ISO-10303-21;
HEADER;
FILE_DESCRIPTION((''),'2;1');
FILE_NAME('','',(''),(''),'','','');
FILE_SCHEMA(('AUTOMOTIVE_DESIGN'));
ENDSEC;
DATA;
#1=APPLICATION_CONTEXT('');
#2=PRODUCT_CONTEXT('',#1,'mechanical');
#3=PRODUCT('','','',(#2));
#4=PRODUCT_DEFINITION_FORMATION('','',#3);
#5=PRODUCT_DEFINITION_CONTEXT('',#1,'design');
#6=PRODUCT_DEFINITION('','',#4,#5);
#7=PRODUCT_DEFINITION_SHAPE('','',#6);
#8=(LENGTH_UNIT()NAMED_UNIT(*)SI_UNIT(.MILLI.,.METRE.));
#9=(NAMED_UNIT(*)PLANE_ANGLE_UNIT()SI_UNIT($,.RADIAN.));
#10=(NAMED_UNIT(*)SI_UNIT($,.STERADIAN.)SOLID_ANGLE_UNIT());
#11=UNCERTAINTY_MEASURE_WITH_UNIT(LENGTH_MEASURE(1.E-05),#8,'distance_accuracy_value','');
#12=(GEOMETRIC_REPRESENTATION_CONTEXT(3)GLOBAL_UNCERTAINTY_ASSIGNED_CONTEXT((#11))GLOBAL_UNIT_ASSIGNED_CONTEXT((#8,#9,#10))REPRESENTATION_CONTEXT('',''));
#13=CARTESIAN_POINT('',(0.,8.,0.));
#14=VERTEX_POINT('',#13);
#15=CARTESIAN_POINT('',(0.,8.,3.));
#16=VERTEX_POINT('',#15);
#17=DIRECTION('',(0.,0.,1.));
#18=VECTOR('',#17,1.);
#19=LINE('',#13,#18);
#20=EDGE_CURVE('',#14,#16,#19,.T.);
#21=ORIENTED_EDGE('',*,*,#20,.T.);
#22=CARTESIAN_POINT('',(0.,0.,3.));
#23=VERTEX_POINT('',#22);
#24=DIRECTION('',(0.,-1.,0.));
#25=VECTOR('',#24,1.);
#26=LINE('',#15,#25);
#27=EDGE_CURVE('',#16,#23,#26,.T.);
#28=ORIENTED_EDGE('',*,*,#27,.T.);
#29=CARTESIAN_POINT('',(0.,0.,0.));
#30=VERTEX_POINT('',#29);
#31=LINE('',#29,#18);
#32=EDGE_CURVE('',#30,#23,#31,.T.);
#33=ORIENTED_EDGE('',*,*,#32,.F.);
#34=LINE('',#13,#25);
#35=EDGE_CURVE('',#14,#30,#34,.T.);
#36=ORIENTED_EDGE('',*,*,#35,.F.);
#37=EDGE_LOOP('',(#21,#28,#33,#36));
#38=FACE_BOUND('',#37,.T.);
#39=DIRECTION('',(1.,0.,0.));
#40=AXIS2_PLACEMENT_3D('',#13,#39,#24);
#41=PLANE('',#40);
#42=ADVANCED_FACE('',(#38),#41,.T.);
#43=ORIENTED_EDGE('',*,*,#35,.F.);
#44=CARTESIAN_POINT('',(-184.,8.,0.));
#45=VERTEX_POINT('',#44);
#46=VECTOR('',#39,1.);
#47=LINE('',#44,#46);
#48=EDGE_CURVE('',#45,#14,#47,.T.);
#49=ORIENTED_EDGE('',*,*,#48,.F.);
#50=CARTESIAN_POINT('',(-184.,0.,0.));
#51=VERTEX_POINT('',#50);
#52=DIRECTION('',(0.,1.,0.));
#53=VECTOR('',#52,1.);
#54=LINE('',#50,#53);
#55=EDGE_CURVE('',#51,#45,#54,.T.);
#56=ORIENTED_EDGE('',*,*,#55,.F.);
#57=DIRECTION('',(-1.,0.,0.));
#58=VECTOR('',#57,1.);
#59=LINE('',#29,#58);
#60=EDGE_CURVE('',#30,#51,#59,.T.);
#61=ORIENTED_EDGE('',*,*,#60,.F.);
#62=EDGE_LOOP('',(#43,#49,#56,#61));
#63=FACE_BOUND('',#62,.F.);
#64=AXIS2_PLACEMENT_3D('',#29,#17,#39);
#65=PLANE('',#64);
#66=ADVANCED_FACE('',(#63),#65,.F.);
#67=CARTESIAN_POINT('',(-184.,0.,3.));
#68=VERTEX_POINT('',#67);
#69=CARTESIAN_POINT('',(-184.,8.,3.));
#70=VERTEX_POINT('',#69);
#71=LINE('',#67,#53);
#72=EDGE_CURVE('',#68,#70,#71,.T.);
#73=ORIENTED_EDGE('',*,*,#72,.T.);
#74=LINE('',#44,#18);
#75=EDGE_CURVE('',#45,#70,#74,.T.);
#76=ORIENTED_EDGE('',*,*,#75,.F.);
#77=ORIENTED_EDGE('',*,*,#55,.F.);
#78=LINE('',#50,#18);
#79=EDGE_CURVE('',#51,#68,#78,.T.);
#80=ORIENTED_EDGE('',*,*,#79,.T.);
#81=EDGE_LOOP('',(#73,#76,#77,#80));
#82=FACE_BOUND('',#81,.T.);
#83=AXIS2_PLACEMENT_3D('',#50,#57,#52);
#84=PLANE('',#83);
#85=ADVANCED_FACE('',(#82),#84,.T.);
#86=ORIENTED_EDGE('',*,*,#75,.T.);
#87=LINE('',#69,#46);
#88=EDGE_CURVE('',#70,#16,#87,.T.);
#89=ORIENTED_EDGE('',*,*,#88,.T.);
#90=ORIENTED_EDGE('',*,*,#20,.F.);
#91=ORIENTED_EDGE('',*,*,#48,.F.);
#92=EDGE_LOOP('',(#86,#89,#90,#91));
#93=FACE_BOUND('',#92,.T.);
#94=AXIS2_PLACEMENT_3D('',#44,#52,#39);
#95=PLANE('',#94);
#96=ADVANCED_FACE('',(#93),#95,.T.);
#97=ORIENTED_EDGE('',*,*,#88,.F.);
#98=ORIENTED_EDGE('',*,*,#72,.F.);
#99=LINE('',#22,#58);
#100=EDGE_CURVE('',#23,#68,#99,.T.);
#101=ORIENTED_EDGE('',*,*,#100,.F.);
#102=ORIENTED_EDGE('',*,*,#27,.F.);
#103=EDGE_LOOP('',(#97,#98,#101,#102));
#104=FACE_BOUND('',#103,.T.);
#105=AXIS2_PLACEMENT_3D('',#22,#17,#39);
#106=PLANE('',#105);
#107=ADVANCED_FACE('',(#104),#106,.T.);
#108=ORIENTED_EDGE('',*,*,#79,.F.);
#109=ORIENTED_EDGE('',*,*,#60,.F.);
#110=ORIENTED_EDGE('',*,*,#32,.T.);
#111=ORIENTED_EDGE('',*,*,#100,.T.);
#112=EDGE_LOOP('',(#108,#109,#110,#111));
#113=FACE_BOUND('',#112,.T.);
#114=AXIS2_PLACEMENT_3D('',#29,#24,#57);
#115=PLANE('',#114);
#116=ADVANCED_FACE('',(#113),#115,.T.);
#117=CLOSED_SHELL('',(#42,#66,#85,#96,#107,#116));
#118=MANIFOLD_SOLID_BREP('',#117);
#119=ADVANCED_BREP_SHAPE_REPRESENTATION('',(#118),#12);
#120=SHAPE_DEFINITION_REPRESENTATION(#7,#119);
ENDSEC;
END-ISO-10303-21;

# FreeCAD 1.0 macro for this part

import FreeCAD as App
import Part
import Sketcher
from FreeCAD import Vector


def add_polygon(sketch, points):
    """Adds a closed chain of lines whose ends are joined by coincident constraints."""
    first, n = sketch.GeometryCount, len(points)
    for a, b in zip(points, points[1:] + points[:1]):
        sketch.addGeometry(Part.LineSegment(App.Vector(*a, 0), App.Vector(*b, 0)), False)
    for i in range(n):
        sketch.addConstraint(Sketcher.Constraint("Coincident", first + i, 2, first + (i + 1) % n, 1))

doc = App.newDocument("Part")
body = doc.addObject("PartDesign::Body", "Body")

sketch1 = body.newObject("Sketcher::SketchObject", "Sketch")
sketch1.AttachmentSupport = (doc.getObject("XY_Plane"), [""])
sketch1.MapMode = "FlatFace"
add_polygon(sketch1, [(-184, 0), (0, 0), (0, 8), (-184, 8)])
sketch1.addConstraint([
    Sketcher.Constraint("Horizontal", 0),
    Sketcher.Constraint("Vertical", 1),
    Sketcher.Constraint("Horizontal", 2),
    Sketcher.Constraint("Vertical", 3),
    Sketcher.Constraint("Coincident", 0, 2, -1, 1),
    Sketcher.Constraint("DistanceX", 0, 1, 0, 2, 184.0),
    Sketcher.Constraint("DistanceY", 1, 1, 1, 2, 8.0),
])
pad1 = body.newObject("PartDesign::Pad", "Pad")
pad1.Profile = sketch1
pad1.Length = 3

doc.recompute()
